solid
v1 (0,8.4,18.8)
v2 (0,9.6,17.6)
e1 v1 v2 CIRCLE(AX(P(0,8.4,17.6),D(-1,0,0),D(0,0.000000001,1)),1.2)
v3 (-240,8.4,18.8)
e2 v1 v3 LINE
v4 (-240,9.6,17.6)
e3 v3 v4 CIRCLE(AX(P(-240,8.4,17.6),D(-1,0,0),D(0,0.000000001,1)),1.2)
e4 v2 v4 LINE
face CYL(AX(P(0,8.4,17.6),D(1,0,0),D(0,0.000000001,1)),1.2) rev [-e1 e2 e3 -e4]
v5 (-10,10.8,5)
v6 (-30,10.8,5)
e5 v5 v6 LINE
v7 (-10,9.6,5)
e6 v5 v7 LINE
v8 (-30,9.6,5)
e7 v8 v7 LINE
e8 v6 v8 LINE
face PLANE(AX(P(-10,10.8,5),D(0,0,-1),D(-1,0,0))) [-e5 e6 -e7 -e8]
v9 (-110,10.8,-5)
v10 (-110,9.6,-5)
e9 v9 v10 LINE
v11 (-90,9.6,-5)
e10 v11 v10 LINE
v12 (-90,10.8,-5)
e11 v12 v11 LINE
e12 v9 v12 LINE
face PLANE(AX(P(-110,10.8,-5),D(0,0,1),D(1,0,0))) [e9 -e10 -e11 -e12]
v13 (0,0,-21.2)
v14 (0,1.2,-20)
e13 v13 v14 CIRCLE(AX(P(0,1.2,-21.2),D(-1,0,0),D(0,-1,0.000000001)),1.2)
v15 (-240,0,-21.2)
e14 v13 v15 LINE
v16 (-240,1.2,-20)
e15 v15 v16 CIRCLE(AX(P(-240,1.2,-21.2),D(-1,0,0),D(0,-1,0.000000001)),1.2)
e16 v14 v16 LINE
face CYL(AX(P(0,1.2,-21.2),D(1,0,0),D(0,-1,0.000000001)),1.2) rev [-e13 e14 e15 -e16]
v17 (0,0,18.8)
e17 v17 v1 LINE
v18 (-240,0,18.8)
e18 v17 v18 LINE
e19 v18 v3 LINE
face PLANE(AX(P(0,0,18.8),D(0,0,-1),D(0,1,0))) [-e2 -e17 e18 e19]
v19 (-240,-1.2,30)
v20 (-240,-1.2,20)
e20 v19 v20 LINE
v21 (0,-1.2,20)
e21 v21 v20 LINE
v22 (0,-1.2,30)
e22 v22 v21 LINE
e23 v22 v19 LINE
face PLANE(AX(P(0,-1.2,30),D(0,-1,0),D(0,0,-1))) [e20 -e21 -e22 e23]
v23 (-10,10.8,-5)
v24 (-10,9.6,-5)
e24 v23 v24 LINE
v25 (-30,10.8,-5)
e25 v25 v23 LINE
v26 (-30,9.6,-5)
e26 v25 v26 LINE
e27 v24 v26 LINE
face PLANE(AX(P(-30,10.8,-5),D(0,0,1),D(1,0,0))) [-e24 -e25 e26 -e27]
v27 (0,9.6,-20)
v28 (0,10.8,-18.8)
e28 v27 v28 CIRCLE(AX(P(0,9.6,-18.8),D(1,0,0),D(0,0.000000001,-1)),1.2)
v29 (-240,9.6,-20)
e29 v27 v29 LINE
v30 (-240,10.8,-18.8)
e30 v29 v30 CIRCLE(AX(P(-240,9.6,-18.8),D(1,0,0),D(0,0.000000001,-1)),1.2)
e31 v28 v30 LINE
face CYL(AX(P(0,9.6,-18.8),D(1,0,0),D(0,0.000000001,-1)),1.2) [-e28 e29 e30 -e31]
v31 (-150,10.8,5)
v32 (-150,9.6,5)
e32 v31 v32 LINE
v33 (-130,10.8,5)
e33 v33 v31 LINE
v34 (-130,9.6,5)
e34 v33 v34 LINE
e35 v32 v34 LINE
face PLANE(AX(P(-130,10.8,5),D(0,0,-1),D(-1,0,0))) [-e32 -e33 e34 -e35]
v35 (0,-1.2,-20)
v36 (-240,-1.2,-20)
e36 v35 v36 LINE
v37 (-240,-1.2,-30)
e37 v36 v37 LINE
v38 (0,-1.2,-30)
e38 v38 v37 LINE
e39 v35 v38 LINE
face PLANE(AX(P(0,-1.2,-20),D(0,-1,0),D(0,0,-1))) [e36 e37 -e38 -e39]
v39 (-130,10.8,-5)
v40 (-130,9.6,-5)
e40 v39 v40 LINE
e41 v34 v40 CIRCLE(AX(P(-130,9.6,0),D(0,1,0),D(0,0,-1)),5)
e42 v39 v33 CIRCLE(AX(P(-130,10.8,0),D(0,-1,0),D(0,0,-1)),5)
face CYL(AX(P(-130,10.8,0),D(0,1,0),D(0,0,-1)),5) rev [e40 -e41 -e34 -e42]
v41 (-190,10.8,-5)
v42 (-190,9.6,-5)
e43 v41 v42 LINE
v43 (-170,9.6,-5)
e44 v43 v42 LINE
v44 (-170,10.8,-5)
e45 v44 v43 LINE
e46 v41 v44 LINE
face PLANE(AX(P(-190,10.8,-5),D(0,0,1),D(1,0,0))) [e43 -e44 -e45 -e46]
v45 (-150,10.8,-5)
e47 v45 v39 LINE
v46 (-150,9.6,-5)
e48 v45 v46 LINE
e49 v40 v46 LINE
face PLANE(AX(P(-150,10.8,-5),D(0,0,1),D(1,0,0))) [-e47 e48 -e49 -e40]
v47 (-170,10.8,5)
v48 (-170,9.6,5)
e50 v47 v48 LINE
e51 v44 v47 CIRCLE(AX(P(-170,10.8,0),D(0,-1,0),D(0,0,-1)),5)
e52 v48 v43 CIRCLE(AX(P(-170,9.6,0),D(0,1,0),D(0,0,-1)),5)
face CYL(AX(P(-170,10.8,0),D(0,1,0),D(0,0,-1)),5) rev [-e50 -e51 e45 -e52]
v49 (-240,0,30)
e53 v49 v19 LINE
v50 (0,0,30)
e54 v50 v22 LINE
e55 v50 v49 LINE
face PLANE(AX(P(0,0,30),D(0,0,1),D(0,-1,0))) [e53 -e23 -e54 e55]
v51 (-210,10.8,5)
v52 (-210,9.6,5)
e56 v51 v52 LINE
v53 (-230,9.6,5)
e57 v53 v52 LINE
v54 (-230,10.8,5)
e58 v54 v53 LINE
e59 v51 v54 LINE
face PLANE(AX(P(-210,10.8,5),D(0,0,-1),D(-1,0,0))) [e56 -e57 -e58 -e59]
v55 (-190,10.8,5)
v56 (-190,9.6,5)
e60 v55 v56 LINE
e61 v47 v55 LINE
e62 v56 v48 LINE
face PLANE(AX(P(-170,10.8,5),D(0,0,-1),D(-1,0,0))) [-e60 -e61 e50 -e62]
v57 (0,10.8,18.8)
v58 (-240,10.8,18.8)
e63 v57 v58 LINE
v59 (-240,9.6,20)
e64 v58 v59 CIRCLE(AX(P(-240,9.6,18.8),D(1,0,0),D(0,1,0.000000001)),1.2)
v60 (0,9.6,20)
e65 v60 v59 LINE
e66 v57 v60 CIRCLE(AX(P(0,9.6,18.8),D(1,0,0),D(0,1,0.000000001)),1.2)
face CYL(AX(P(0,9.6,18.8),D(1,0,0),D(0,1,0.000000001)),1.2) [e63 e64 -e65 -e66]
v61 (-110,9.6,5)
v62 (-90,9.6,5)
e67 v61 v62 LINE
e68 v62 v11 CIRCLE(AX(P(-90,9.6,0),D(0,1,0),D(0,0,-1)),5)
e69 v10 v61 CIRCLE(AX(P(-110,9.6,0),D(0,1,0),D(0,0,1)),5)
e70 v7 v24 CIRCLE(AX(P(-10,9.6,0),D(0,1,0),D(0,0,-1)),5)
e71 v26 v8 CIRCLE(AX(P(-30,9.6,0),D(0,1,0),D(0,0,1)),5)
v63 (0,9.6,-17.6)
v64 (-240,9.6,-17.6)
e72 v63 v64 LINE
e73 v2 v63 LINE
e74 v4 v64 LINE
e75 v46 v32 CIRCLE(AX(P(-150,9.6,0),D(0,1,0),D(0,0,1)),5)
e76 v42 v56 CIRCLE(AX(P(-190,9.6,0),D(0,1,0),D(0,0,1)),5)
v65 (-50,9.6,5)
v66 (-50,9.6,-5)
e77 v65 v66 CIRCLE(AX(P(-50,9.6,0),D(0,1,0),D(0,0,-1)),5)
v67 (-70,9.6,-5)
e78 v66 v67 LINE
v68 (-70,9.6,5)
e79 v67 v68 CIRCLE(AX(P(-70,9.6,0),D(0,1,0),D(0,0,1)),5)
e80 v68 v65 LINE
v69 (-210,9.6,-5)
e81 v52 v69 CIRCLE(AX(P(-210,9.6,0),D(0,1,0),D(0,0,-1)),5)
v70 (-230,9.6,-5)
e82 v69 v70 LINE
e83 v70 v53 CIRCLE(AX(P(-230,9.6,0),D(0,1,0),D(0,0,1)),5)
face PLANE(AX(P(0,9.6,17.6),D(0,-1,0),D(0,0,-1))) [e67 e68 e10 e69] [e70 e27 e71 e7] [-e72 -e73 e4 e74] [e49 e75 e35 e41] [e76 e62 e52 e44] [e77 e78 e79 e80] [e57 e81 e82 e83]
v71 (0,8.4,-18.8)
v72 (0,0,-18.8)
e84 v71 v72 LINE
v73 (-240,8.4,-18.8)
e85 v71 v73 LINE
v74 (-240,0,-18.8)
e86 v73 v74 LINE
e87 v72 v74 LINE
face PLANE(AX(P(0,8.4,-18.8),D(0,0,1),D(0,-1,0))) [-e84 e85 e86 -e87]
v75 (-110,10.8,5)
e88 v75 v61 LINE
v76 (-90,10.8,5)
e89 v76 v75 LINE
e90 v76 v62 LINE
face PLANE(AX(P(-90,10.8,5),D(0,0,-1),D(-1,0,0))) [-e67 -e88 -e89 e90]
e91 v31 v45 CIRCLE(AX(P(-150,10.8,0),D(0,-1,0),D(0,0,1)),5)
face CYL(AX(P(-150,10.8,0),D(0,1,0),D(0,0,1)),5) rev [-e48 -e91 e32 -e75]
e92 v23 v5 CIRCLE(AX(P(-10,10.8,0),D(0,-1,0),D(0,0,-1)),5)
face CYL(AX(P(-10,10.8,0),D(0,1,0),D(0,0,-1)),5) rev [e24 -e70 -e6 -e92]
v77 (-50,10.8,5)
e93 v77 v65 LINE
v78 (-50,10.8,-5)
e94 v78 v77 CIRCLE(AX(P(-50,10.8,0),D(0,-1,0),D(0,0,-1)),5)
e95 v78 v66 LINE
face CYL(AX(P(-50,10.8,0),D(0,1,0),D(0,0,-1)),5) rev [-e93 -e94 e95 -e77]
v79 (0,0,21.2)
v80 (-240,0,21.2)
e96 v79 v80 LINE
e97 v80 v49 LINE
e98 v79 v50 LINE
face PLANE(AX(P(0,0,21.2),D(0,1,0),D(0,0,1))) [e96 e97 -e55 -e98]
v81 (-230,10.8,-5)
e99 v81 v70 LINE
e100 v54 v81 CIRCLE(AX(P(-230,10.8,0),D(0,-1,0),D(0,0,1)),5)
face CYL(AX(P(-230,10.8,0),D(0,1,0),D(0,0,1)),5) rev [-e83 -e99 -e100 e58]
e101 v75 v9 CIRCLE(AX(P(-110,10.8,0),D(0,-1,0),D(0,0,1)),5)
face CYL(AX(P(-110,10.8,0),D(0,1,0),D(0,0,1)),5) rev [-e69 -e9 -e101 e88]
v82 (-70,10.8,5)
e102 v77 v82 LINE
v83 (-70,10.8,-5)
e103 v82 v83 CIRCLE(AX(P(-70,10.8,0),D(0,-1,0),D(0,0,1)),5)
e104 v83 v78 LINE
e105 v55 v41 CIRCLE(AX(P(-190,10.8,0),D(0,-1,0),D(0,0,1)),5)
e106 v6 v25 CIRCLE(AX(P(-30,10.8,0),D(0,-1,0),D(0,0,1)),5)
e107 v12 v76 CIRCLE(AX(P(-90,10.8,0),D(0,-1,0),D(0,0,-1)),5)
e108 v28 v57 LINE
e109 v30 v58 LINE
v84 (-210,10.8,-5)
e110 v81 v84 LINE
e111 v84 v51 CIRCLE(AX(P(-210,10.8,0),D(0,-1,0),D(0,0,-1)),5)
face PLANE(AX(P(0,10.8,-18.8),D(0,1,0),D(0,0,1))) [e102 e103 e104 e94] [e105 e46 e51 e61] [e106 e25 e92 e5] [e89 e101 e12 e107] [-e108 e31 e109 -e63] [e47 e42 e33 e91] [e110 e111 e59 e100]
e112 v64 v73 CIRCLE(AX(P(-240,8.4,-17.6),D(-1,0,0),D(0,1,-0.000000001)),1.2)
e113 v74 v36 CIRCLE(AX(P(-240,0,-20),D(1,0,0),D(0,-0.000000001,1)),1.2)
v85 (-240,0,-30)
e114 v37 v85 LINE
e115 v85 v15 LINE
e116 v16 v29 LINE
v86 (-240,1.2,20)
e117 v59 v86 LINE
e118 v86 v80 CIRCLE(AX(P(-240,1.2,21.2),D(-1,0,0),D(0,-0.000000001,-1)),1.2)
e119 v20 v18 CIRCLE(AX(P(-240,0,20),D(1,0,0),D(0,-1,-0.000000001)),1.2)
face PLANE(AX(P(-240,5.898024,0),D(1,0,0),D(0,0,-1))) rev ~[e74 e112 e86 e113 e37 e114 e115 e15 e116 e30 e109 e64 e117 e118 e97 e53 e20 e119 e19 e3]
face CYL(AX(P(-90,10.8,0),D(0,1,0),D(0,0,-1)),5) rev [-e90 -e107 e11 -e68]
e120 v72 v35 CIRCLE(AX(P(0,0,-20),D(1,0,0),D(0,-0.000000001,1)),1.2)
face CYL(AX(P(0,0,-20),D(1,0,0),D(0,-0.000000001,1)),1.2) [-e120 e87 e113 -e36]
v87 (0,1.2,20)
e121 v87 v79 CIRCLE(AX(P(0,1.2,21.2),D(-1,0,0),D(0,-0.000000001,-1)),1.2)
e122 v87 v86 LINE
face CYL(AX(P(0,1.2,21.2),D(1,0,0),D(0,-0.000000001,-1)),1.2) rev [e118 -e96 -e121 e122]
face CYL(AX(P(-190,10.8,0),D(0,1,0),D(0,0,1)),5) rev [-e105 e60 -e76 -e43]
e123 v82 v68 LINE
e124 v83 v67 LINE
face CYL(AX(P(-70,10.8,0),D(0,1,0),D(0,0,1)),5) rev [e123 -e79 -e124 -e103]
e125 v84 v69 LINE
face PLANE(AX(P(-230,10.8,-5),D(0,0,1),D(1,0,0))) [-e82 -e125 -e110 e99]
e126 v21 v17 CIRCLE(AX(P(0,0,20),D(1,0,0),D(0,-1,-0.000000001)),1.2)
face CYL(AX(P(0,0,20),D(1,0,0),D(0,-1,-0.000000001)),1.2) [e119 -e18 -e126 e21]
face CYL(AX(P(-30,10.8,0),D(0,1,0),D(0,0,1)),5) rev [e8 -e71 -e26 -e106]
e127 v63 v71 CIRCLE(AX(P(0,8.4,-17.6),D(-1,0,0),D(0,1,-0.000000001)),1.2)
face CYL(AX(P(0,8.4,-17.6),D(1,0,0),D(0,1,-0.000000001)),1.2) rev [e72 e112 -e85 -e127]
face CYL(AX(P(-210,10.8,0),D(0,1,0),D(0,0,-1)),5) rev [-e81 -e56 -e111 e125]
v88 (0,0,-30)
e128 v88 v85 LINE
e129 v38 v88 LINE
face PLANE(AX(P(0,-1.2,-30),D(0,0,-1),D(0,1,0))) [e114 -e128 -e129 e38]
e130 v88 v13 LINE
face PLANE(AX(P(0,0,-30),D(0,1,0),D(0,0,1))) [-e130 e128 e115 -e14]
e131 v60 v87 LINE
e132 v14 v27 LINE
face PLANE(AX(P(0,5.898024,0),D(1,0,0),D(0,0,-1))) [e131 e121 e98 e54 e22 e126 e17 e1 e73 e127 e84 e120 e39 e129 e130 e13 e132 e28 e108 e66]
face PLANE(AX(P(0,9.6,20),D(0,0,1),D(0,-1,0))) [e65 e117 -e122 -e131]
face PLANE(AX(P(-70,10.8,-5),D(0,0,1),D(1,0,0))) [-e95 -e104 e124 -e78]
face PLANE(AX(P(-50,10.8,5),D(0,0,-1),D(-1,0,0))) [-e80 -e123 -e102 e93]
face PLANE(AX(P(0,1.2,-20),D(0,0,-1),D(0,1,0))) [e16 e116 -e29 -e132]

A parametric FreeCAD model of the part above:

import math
import FreeCAD as App
import Part
import Sketcher
from FreeCAD import Vector

doc = App.newDocument("Part")
body = doc.addObject("PartDesign::Body", "Body")

# Sketch on YZ plane
sketch1 = doc.addObject("Sketcher::SketchObject", "Sketch")
body.addObject(sketch1)
sketch1.AttachmentSupport = (doc.YZ_Plane, [""])
sketch1.MapMode = "FlatFace"
sketch1.addGeometry([
    Part.LineSegment(Vector(0, 21.2, 0), Vector(0, 30, 0)),  # 0
    Part.LineSegment(Vector(0, 30, 0), Vector(-1.2, 30, 0)),  # 1
    Part.LineSegment(Vector(-1.2, 30, 0), Vector(-1.2, 20, 0)),  # 2
    Part.ArcOfCircle(Part.Circle(Vector(0, 20, 0), Vector(0, 0, 1), 1.2), math.radians(-180), math.radians(-90)),  # 3
    Part.LineSegment(Vector(0, 18.8, 0), Vector(8.4, 18.8, 0)),  # 4
    Part.ArcOfCircle(Part.Circle(Vector(8.4, 17.6, 0), Vector(0, 0, 1), 1.2), math.radians(0), math.radians(90)),  # 5
    Part.LineSegment(Vector(9.6, 17.6, 0), Vector(9.6, -17.6, 0)),  # 6
    Part.ArcOfCircle(Part.Circle(Vector(8.4, -17.6, 0), Vector(0, 0, 1), 1.2), math.radians(-90), math.radians(0)),  # 7
    Part.LineSegment(Vector(8.4, -18.8, 0), Vector(0, -18.8, 0)),  # 8
    Part.ArcOfCircle(Part.Circle(Vector(0, -20, 0), Vector(0, 0, 1), 1.2), math.radians(90), math.radians(180)),  # 9
    Part.LineSegment(Vector(-1.2, -20, 0), Vector(-1.2, -30, 0)),  # 10
    Part.LineSegment(Vector(-1.2, -30, 0), Vector(0, -30, 0)),  # 11
    Part.LineSegment(Vector(0, -30, 0), Vector(0, -21.2, 0)),  # 12
    Part.ArcOfCircle(Part.Circle(Vector(1.2, -21.2, 0), Vector(0, 0, 1), 1.2), math.radians(90), math.radians(180)),  # 13
    Part.LineSegment(Vector(1.2, -20, 0), Vector(9.6, -20, 0)),  # 14
    Part.ArcOfCircle(Part.Circle(Vector(9.6, -18.8, 0), Vector(0, 0, 1), 1.2), math.radians(-90), math.radians(0)),  # 15
    Part.LineSegment(Vector(10.8, -18.8, 0), Vector(10.8, 18.8, 0)),  # 16
    Part.ArcOfCircle(Part.Circle(Vector(9.6, 18.8, 0), Vector(0, 0, 1), 1.2), math.radians(0), math.radians(90)),  # 17
    Part.LineSegment(Vector(9.6, 20, 0), Vector(1.2, 20, 0)),  # 18
    Part.ArcOfCircle(Part.Circle(Vector(1.2, 21.2, 0), Vector(0, 0, 1), 1.2), math.radians(-180), math.radians(-90)),  # 19
], False)
sketch1.addConstraint([
    Sketcher.Constraint("Coincident", 0, 2, 1, 1),
    Sketcher.Constraint("Coincident", 1, 2, 2, 1),
    Sketcher.Constraint("Tangent", 2, 2, 3, 1),
    Sketcher.Constraint("Tangent", 3, 2, 4, 1),
    Sketcher.Constraint("Tangent", 4, 2, 5, 2),
    Sketcher.Constraint("Tangent", 5, 1, 6, 1),
    Sketcher.Constraint("Tangent", 6, 2, 7, 2),
    Sketcher.Constraint("Tangent", 7, 1, 8, 1),
    Sketcher.Constraint("Tangent", 8, 2, 9, 1),
    Sketcher.Constraint("Tangent", 9, 2, 10, 1),
    Sketcher.Constraint("Coincident", 10, 2, 11, 1),
    Sketcher.Constraint("Coincident", 11, 2, 12, 1),
    Sketcher.Constraint("Tangent", 12, 2, 13, 2),
    Sketcher.Constraint("Tangent", 13, 1, 14, 1),
    Sketcher.Constraint("Tangent", 14, 2, 15, 1),
    Sketcher.Constraint("Tangent", 15, 2, 16, 1),
    Sketcher.Constraint("Tangent", 16, 2, 17, 1),
    Sketcher.Constraint("Tangent", 17, 2, 18, 1),
    Sketcher.Constraint("Tangent", 18, 2, 19, 2),
    Sketcher.Constraint("Tangent", 19, 1, 0, 1),
    Sketcher.Constraint("Vertical", 0),
    Sketcher.Constraint("Horizontal", 1),
    Sketcher.Constraint("Vertical", 2),
    Sketcher.Constraint("Horizontal", 4),
    Sketcher.Constraint("Vertical", 6),
    Sketcher.Constraint("Horizontal", 8),
    Sketcher.Constraint("Vertical", 10),
    Sketcher.Constraint("Horizontal", 11),
    Sketcher.Constraint("Vertical", 12),
    Sketcher.Constraint("Horizontal", 14),
    Sketcher.Constraint("Vertical", 16),
    Sketcher.Constraint("Horizontal", 18),
    Sketcher.Constraint("Equal", 3, 5),
    Sketcher.Constraint("Equal", 5, 7),
    Sketcher.Constraint("Equal", 7, 9),
    Sketcher.Constraint("Equal", 9, 13),
    Sketcher.Constraint("Equal", 13, 15),
    Sketcher.Constraint("Equal", 15, 17),
    Sketcher.Constraint("Equal", 17, 19),
    Sketcher.Constraint("Symmetric", 3, 3, 9, 3, -1, 1),
    Sketcher.Constraint("Symmetric", 0, 2, 11, 2, -1, 1),
    Sketcher.Constraint("Symmetric", 2, 2, 13, 1, -1, 1),
    Sketcher.Constraint("Symmetric", 2, 2, 18, 2, -2),
    Sketcher.Constraint("Vertical", 17, 3, 5, 1),
    Sketcher.Constraint("Radius", 3, 1.2),
    Sketcher.Constraint("DistanceY", 2, 2, 2, 1, 10.0),
    Sketcher.Constraint("DistanceX", 4, 1, 4, 2, 8.4),
    Sketcher.Constraint("DistanceY", 6, 2, 6, 1, 35.2),
])
pad1 = doc.addObject("PartDesign::Pad", "Pad")
body.addObject(pad1)
pad1.Profile = sketch1
pad1.Length = 240
pad1.Reversed = True

# Sketch on XZ plane
sketch2 = doc.addObject("Sketcher::SketchObject", "Sketch001")
body.addObject(sketch2)
sketch2.AttachmentSupport = (doc.XZ_Plane, [""])
sketch2.MapMode = "FlatFace"
sketch2.AttachmentOffset = App.Placement(Vector(0, 0, -10.8), App.Rotation())
sketch2.addGeometry([
    Part.LineSegment(Vector(-210, -5, 0), Vector(-230, -5, 0)),  # 0
    Part.ArcOfCircle(Part.Circle(Vector(-230, 0, 0), Vector(0, 0, 1), 5), math.radians(90), math.radians(270)),  # 1
    Part.LineSegment(Vector(-230, 5, 0), Vector(-210, 5, 0)),  # 2
    Part.ArcOfCircle(Part.Circle(Vector(-210, 0, 0), Vector(0, 0, 1), 5), math.radians(-90), math.radians(90)),  # 3
    Part.LineSegment(Vector(-170, -5, 0), Vector(-190, -5, 0)),  # 4
    Part.ArcOfCircle(Part.Circle(Vector(-190, 0, 0), Vector(0, 0, 1), 5), math.radians(90), math.radians(270)),  # 5
    Part.LineSegment(Vector(-190, 5, 0), Vector(-170, 5, 0)),  # 6
    Part.ArcOfCircle(Part.Circle(Vector(-170, 0, 0), Vector(0, 0, 1), 5), math.radians(-90), math.radians(90)),  # 7
    Part.LineSegment(Vector(-130, -5, 0), Vector(-150, -5, 0)),  # 8
    Part.ArcOfCircle(Part.Circle(Vector(-150, 0, 0), Vector(0, 0, 1), 5), math.radians(90), math.radians(270)),  # 9
    Part.LineSegment(Vector(-150, 5, 0), Vector(-130, 5, 0)),  # 10
    Part.ArcOfCircle(Part.Circle(Vector(-130, 0, 0), Vector(0, 0, 1), 5), math.radians(-90), math.radians(90)),  # 11
    Part.LineSegment(Vector(-90, -5, 0), Vector(-110, -5, 0)),  # 12
    Part.ArcOfCircle(Part.Circle(Vector(-110, 0, 0), Vector(0, 0, 1), 5), math.radians(90), math.radians(270)),  # 13
    Part.LineSegment(Vector(-110, 5, 0), Vector(-90, 5, 0)),  # 14
    Part.ArcOfCircle(Part.Circle(Vector(-90, 0, 0), Vector(0, 0, 1), 5), math.radians(-90), math.radians(90)),  # 15
    Part.LineSegment(Vector(-50, -5, 0), Vector(-70, -5, 0)),  # 16
    Part.ArcOfCircle(Part.Circle(Vector(-70, 0, 0), Vector(0, 0, 1), 5), math.radians(90), math.radians(270)),  # 17
    Part.LineSegment(Vector(-70, 5, 0), Vector(-50, 5, 0)),  # 18
    Part.ArcOfCircle(Part.Circle(Vector(-50, 0, 0), Vector(0, 0, 1), 5), math.radians(-90), math.radians(90)),  # 19
    Part.LineSegment(Vector(-10, -5, 0), Vector(-30, -5, 0)),  # 20
    Part.ArcOfCircle(Part.Circle(Vector(-30, 0, 0), Vector(0, 0, 1), 5), math.radians(90), math.radians(270)),  # 21
    Part.LineSegment(Vector(-30, 5, 0), Vector(-10, 5, 0)),  # 22
    Part.ArcOfCircle(Part.Circle(Vector(-10, 0, 0), Vector(0, 0, 1), 5), math.radians(-90), math.radians(90)),  # 23
], False)
sketch2.addConstraint([
    Sketcher.Constraint("Tangent", 0, 2, 1, 2),
    Sketcher.Constraint("Tangent", 1, 1, 2, 1),
    Sketcher.Constraint("Tangent", 2, 2, 3, 2),
    Sketcher.Constraint("Tangent", 3, 1, 0, 1),
    Sketcher.Constraint("Tangent", 4, 2, 5, 2),
    Sketcher.Constraint("Tangent", 5, 1, 6, 1),
    Sketcher.Constraint("Tangent", 6, 2, 7, 2),
    Sketcher.Constraint("Tangent", 7, 1, 4, 1),
    Sketcher.Constraint("Tangent", 8, 2, 9, 2),
    Sketcher.Constraint("Tangent", 9, 1, 10, 1),
    Sketcher.Constraint("Tangent", 10, 2, 11, 2),
    Sketcher.Constraint("Tangent", 11, 1, 8, 1),
    Sketcher.Constraint("Tangent", 12, 2, 13, 2),
    Sketcher.Constraint("Tangent", 13, 1, 14, 1),
    Sketcher.Constraint("Tangent", 14, 2, 15, 2),
    Sketcher.Constraint("Tangent", 15, 1, 12, 1),
    Sketcher.Constraint("Tangent", 16, 2, 17, 2),
    Sketcher.Constraint("Tangent", 17, 1, 18, 1),
    Sketcher.Constraint("Tangent", 18, 2, 19, 2),
    Sketcher.Constraint("Tangent", 19, 1, 16, 1),
    Sketcher.Constraint("Tangent", 20, 2, 21, 2),
    Sketcher.Constraint("Tangent", 21, 1, 22, 1),
    Sketcher.Constraint("Tangent", 22, 2, 23, 2),
    Sketcher.Constraint("Tangent", 23, 1, 20, 1),
    Sketcher.Constraint("Horizontal", 0),
    Sketcher.Constraint("Horizontal", 2),
    Sketcher.Constraint("Horizontal", 4),
    Sketcher.Constraint("Horizontal", 6),
    Sketcher.Constraint("Horizontal", 8),
    Sketcher.Constraint("Horizontal", 10),
    Sketcher.Constraint("Horizontal", 12),
    Sketcher.Constraint("Horizontal", 14),
    Sketcher.Constraint("Horizontal", 16),
    Sketcher.Constraint("Horizontal", 18),
    Sketcher.Constraint("Horizontal", 20),
    Sketcher.Constraint("Horizontal", 22),
    Sketcher.Constraint("Equal", 3, 5),
    Sketcher.Constraint("Equal", 7, 9),
    Sketcher.Constraint("Equal", 11, 13),
    Sketcher.Constraint("Equal", 15, 17),
    Sketcher.Constraint("Equal", 19, 21),
    Sketcher.Constraint("PointOnObject", 1, 3, -1),
    Sketcher.Constraint("PointOnObject", 5, 3, -1),
    Sketcher.Constraint("PointOnObject", 9, 3, -1),
    Sketcher.Constraint("PointOnObject", 13, 3, -1),
    Sketcher.Constraint("PointOnObject", 17, 3, -1),
    Sketcher.Constraint("PointOnObject", 21, 3, -1),
    Sketcher.Constraint("Equal", 2, 4),
    Sketcher.Constraint("Equal", 6, 8),
    Sketcher.Constraint("Equal", 10, 12),
    Sketcher.Constraint("Equal", 14, 16),
    Sketcher.Constraint("Equal", 18, 20),
    Sketcher.Constraint("Radius", 1, 5.0),
    Sketcher.Constraint("DistanceX", 0, 2, 0, 1, 20.0),
    Sketcher.Constraint("DistanceX", 1, 3, -1, 1, 230.0),
    Sketcher.Constraint("DistanceX", 5, 3, -1, 1, 190.0),
    Sketcher.Constraint("DistanceX", 9, 3, -1, 1, 150.0),
    Sketcher.Constraint("DistanceX", 13, 3, -1, 1, 110.0),
    Sketcher.Constraint("DistanceX", 17, 3, -1, 1, 70.0),
    Sketcher.Constraint("DistanceX", 21, 3, -1, 1, 30.0),
])
pocket1 = doc.addObject("PartDesign::Pocket", "Pocket")
body.addObject(pocket1)
pocket1.Profile = sketch2
pocket1.Type = "ThroughAll"
pocket1.Reversed = True

doc.recompute()
